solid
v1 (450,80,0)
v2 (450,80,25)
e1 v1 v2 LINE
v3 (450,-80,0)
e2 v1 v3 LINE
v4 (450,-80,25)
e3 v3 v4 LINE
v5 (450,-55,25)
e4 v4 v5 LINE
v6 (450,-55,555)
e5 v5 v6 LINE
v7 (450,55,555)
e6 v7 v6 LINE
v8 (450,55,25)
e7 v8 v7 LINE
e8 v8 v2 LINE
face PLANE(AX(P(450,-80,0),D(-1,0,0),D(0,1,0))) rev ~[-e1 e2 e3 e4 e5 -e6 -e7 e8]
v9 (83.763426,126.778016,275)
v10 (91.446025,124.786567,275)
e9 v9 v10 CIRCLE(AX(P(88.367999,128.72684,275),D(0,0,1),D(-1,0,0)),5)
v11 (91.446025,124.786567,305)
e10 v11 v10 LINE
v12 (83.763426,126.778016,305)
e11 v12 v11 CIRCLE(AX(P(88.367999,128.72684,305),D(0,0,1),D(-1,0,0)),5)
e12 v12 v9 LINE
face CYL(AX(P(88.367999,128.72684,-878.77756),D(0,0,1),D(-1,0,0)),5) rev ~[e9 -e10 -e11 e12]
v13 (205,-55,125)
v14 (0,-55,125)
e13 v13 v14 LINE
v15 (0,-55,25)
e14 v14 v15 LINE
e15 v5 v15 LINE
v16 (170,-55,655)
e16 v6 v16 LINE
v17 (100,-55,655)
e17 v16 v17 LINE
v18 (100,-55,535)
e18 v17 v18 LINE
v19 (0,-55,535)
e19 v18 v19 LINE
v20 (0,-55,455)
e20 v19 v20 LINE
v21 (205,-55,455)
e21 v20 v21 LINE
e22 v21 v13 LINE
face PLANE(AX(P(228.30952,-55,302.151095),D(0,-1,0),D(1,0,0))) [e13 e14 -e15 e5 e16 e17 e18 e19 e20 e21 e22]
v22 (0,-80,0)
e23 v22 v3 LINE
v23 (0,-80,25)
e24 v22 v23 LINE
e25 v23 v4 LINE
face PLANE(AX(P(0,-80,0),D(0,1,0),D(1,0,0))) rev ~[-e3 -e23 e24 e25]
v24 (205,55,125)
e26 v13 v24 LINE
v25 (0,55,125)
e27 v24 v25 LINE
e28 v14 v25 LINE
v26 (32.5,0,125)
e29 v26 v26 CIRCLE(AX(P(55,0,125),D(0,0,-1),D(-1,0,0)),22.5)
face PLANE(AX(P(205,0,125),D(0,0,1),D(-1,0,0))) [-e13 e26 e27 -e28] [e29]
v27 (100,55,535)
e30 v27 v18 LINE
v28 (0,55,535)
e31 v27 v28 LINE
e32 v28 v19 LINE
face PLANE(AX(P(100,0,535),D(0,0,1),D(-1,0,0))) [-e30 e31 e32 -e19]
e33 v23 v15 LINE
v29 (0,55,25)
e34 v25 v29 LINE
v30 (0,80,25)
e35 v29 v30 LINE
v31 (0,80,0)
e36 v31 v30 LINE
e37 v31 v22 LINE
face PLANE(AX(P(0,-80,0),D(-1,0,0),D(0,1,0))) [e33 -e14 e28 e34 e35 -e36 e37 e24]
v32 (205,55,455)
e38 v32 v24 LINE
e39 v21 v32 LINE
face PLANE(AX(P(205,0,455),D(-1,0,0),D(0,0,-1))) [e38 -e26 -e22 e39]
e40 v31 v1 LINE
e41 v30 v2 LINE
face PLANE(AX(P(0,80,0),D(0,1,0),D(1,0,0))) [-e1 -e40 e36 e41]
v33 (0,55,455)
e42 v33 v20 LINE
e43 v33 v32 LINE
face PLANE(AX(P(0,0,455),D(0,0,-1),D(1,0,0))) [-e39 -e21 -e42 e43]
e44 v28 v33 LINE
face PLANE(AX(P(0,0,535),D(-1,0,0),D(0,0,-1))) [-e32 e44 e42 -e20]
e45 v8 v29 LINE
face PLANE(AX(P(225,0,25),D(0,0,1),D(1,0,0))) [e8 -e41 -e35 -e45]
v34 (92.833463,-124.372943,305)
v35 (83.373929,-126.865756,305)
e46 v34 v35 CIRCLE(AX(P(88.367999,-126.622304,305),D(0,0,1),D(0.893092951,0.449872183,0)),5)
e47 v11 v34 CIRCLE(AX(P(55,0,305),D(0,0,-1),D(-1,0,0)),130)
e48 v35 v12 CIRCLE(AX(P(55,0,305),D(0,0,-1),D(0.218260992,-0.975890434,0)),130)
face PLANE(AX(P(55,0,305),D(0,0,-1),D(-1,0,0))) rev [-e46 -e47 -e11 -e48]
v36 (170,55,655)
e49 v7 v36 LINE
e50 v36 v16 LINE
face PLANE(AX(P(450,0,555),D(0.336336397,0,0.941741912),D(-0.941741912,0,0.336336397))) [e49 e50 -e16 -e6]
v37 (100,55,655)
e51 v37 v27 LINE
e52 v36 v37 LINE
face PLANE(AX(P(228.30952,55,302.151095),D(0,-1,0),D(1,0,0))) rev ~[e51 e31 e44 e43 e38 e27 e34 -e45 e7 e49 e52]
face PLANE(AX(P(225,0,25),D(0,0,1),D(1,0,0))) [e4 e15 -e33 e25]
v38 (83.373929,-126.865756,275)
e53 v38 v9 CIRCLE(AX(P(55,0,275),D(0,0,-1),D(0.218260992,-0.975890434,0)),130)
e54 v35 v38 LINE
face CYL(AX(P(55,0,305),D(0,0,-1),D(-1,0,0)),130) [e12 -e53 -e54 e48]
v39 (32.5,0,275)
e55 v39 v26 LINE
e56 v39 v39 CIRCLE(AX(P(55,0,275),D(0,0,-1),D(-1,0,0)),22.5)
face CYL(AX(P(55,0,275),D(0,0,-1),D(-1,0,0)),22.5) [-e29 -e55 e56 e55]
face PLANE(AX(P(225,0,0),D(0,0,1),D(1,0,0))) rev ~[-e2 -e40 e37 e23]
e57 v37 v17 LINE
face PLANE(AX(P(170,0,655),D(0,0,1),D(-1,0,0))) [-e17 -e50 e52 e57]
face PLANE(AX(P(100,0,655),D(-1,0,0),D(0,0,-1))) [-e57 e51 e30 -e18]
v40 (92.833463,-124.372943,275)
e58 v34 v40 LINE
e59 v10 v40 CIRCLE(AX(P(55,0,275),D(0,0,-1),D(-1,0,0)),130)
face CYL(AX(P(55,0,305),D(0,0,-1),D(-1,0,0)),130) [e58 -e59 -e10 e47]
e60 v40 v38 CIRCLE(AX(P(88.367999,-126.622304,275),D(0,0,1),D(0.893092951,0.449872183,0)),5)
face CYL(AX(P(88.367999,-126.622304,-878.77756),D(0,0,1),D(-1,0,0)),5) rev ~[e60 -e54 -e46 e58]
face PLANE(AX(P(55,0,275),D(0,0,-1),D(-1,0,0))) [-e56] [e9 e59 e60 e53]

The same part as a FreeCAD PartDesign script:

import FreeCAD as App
import Part
import Sketcher
from FreeCAD import Vector


def add_polygon(sketch, points):
    """Adds a closed chain of lines whose ends are joined by coincident constraints."""
    first, n = sketch.GeometryCount, len(points)
    for a, b in zip(points, points[1:] + points[:1]):
        sketch.addGeometry(Part.LineSegment(App.Vector(*a, 0), App.Vector(*b, 0)), False)
    for i in range(n):
        sketch.addConstraint(Sketcher.Constraint("Coincident", first + i, 2, first + (i + 1) % n, 1))

doc = App.newDocument("Part")
body = doc.addObject("PartDesign::Body", "Body")

sketch1 = body.newObject("Sketcher::SketchObject", "Sketch")
sketch1.AttachmentSupport = (doc.getObject("XZ_Plane"), [""])
sketch1.MapMode = "FlatFace"
add_polygon(sketch1, [(0, 125), (0, 0), (450, 0), (450, 555), (170, 655), (100, 655), (100, 535), (0, 535), (0, 455), (205, 455), (205, 125)])
sketch1.addConstraint(Sketcher.Constraint("Vertical", 0))
sketch1.addConstraint(Sketcher.Constraint("Horizontal", 1))
sketch1.addConstraint(Sketcher.Constraint("Vertical", 2))
sketch1.addConstraint(Sketcher.Constraint("Horizontal", 4))
sketch1.addConstraint(Sketcher.Constraint("Vertical", 5))
sketch1.addConstraint(Sketcher.Constraint("Horizontal", 6))
sketch1.addConstraint(Sketcher.Constraint("Vertical", 7))
sketch1.addConstraint(Sketcher.Constraint("Horizontal", 8))
sketch1.addConstraint(Sketcher.Constraint("Vertical", 9))
sketch1.addConstraint(Sketcher.Constraint("Horizontal", 10))
sketch1.addConstraint(Sketcher.Constraint("Coincident", 0, 2, -1, 1))
sketch1.addConstraint(Sketcher.Constraint("PointOnObject", 6, 2, -2))
sketch1.addConstraint(Sketcher.Constraint("DistanceX", 1, 1, 1, 2, 450.0))
sketch1.addConstraint(Sketcher.Constraint("DistanceX", 4, 2, 4, 1, 70.0))
sketch1.addConstraint(Sketcher.Constraint("DistanceX", 6, 2, 6, 1, 100.0))
sketch1.addConstraint(Sketcher.Constraint("DistanceX", 8, 1, 8, 2, 205.0))
sketch1.addConstraint(Sketcher.Constraint("DistanceY", 0, 2, 0, 1, 125.0))
sketch1.addConstraint(Sketcher.Constraint("DistanceY", 2, 1, 2, 2, 555.0))
sketch1.addConstraint(Sketcher.Constraint("DistanceY", 5, 2, 5, 1, 120.0))
sketch1.addConstraint(Sketcher.Constraint("DistanceY", 7, 2, 7, 1, 80.0))
sketch1.addConstraint(Sketcher.Constraint("DistanceY", 9, 2, 9, 1, 330.0))
pad1 = body.newObject("PartDesign::Pad", "Pad")
pad1.Profile = sketch1
pad1.Length = 110
pad1.Midplane = True

sketch2 = body.newObject("Sketcher::SketchObject", "Sketch001")
sketch2.AttachmentSupport = (doc.getObject("XY_Plane"), [""])
sketch2.MapMode = "FlatFace"
add_polygon(sketch2, [(0, 80), (0, -80), (450, -80), (450, 80)])
sketch2.addConstraint(Sketcher.Constraint("Vertical", 0))
sketch2.addConstraint(Sketcher.Constraint("Horizontal", 1))
sketch2.addConstraint(Sketcher.Constraint("Vertical", 2))
sketch2.addConstraint(Sketcher.Constraint("Horizontal", 3))
sketch2.addConstraint(Sketcher.Constraint("Symmetric", 0, 2, 3, 2, -1, 1))
sketch2.addConstraint(Sketcher.Constraint("DistanceX", 1, 1, 1, 2, 450.0))
sketch2.addConstraint(Sketcher.Constraint("DistanceY", 0, 2, 0, 1, 160.0))
pad2 = body.newObject("PartDesign::Pad", "Pad001")
pad2.Profile = sketch2
pad2.Length = 25

sketch3 = body.newObject("Sketcher::SketchObject", "Sketch002")
sketch3.AttachmentSupport = (doc.getObject("XZ_Plane"), [""])
sketch3.MapMode = "FlatFace"
add_polygon(sketch3, [(32, 275), (32, 125), (55, 125), (55, 305), (-75, 305), (-75, 275)])
sketch3.addGeometry(Part.LineSegment(Vector(55, 305, 0), Vector(55, 125, 0)), True)
sketch3.addConstraint(Sketcher.Constraint("Vertical", 0))
sketch3.addConstraint(Sketcher.Constraint("Horizontal", 1))
sketch3.addConstraint(Sketcher.Constraint("Vertical", 2))
sketch3.addConstraint(Sketcher.Constraint("Horizontal", 3))
sketch3.addConstraint(Sketcher.Constraint("Vertical", 4))
sketch3.addConstraint(Sketcher.Constraint("Horizontal", 5))
sketch3.addConstraint(Sketcher.Constraint("Vertical", 6))
sketch3.addConstraint(Sketcher.Constraint("Coincident", 6, 1, 2, 2))
sketch3.addConstraint(Sketcher.Constraint("Horizontal", 0, 2, 6, 2))
sketch3.addConstraint(Sketcher.Constraint("DistanceX", 3, 2, 3, 1, 130.0))
sketch3.addConstraint(Sketcher.Constraint("DistanceY", 0, 2, 0, 1, 150.0))
sketch3.addConstraint(Sketcher.Constraint("DistanceY", 2, 1, 2, 2, 180.0))
sketch3.addConstraint(Sketcher.Constraint("DistanceX", 1, 1, 1, 2, 22.5))
sketch3.addConstraint(Sketcher.Constraint("DistanceY", -1, 1, 0, 2, 125.0))
sketch3.addConstraint(Sketcher.Constraint("DistanceX", -1, 1, 1, 2, 55.0))
revolution = body.newObject("PartDesign::Revolution", "Revolution")
revolution.Profile = sketch3
revolution.ReferenceAxis = (sketch3, ["Axis0"])
revolution.Angle = 360

sketch4 = body.newObject("Sketcher::SketchObject", "Sketch003")
sketch4.AttachmentSupport = (doc.getObject("XY_Plane"), [""])
sketch4.MapMode = "FlatFace"
sketch4.addGeometry(Part.Circle(Vector(88, -127, 0), Vector(0, 0, 1), 5), False)
sketch4.addGeometry(Part.Circle(Vector(603, -127, 0), Vector(0, 0, 1), 5), False)
sketch4.addGeometry(Part.Circle(Vector(603, 129, 0), Vector(0, 0, 1), 5), False)
sketch4.addGeometry(Part.Circle(Vector(88, 129, 0), Vector(0, 0, 1), 5), False)
sketch4.addConstraint(Sketcher.Constraint("Equal", 0, 1))
sketch4.addConstraint(Sketcher.Constraint("Equal", 1, 2))
sketch4.addConstraint(Sketcher.Constraint("Equal", 2, 3))
sketch4.addConstraint(Sketcher.Constraint("Horizontal", 0, 3, 1, 3))
sketch4.addConstraint(Sketcher.Constraint("Horizontal", 2, 3, 3, 3))
sketch4.addConstraint(Sketcher.Constraint("Vertical", 1, 3, 2, 3))
sketch4.addConstraint(Sketcher.Constraint("Vertical", 0, 3, 3, 3))
sketch4.addConstraint(Sketcher.Constraint("Diameter", 0, 10.0))
sketch4.addConstraint(Sketcher.Constraint("DistanceX", -1, 1, 0, 3, 88.367999))
sketch4.addConstraint(Sketcher.Constraint("DistanceY", -1, 1, 2, 3, 128.72684))
sketch4.addConstraint(Sketcher.Constraint("DistanceY", 0, 3, -1, 1, 126.622304))
sketch4.addConstraint(Sketcher.Constraint("DistanceX", -1, 1, 1, 3, 602.573812))
doc.recompute()
hole = body.newObject("PartDesign::Hole", "Hole")
hole.Profile = sketch4
hole.ThreadType = "None"
hole.Diameter = 10
hole.DepthType = "ThroughAll"
hole.Reversed = True

doc.recompute()
